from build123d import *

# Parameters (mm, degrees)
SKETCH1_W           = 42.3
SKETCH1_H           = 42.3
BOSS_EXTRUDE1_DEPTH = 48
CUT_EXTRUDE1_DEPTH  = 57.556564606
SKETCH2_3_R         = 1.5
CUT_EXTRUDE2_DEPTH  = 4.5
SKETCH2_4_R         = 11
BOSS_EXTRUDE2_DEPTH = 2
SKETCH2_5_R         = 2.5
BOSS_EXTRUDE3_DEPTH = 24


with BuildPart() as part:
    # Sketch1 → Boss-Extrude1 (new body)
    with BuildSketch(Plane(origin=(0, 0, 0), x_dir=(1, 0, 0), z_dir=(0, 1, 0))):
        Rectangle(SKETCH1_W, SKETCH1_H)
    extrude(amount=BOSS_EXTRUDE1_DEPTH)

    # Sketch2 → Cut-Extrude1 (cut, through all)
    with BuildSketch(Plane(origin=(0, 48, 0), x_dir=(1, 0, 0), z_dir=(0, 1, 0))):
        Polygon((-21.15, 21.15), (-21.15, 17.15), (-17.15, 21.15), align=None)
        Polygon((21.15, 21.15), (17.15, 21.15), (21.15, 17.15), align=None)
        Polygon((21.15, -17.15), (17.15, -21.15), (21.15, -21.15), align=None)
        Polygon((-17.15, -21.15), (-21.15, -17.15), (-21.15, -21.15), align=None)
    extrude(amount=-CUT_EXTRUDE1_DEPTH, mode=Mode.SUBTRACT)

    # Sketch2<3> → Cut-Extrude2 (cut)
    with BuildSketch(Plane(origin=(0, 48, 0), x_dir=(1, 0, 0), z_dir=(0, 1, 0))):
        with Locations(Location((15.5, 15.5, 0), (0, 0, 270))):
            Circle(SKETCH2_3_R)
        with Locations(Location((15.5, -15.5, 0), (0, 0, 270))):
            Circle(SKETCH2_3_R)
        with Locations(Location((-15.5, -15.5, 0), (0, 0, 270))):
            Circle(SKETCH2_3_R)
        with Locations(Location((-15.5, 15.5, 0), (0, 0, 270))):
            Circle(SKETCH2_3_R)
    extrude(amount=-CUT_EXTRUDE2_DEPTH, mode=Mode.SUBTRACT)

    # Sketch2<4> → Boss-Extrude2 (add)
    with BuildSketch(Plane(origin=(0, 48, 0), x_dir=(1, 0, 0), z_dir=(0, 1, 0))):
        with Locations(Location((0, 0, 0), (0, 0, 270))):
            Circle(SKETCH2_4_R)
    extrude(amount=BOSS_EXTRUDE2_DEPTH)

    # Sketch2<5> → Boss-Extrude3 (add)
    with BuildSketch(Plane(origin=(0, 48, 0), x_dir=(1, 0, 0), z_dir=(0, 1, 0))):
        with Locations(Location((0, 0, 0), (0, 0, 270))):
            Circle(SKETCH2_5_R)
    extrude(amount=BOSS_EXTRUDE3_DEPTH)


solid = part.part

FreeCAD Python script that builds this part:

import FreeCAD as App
import Part
import Sketcher

V = App.Vector
Q = App.Units.Quantity


def add_polygon(sketch, points):
    """Adds a closed chain of lines whose ends are joined by coincident constraints."""
    first, n = sketch.GeometryCount, len(points)
    for a, b in zip(points, points[1:] + points[:1]):
        sketch.addGeometry(Part.LineSegment(App.Vector(*a, 0), App.Vector(*b, 0)), False)
    for i in range(n):
        sketch.addConstraint(Sketcher.Constraint("Coincident", first + i, 2, first + (i + 1) % n, 1))

doc = App.newDocument("Part")
params = doc.addObject("Spreadsheet::Sheet", "Params")
for row, (alias, value) in enumerate([
    ("sketch1_width", "42.3 mm"),
    ("pad1_length", "48 mm"),
    ("sketch2_width", "4 mm"),
    ("sketch3_diameter", "3 mm"),
    ("pocket2_length", "4.5 mm"),
    ("sketch4_diameter", "22 mm"),
    ("pad2_length", "2 mm"),
    ("sketch5_diameter", "5 mm"),
    ("pad3_length", "24 mm"),
], start=1):
    params.set(f"A{row}", alias)
    params.set(f"B{row}", "=" + value)
    params.setAlias(f"B{row}", alias)

body = doc.addObject("PartDesign::Body", "Body")

# Sketch on XZ plane
sketch1 = body.newObject("Sketcher::SketchObject", "Sketch")
sketch1.AttachmentSupport = (doc.getObject("XZ_Plane"), [""])
sketch1.MapMode = "FlatFace"
add_polygon(sketch1, [(-21, -21), (-21, 21), (21, 21), (21, -21)])  # lines 0-3
sketch1.addConstraint([
    Sketcher.Constraint("Vertical", 0),
    Sketcher.Constraint("Horizontal", 1),
    Sketcher.Constraint("Vertical", 2),
    Sketcher.Constraint("Horizontal", 3),
    Sketcher.Constraint("Symmetric", 0, 2, 2, 2, -1, 1),
    Sketcher.Constraint("Equal", 3, 0),
    Sketcher.Constraint("DistanceX", 1, 1, 1, 2, Q("42.3 mm")),
])
sketch1.setExpression("Constraints[10]", "Params.sketch1_width")
pad1 = body.newObject("PartDesign::Pad", "Pad")
pad1.Profile = sketch1
pad1.setExpression("Length", "Params.pad1_length")
pad1.Reversed = True

# Sketch on XZ plane
sketch2 = body.newObject("Sketcher::SketchObject", "Sketch001")
sketch2.AttachmentSupport = (doc.getObject("XZ_Plane"), [""])
sketch2.MapMode = "FlatFace"
sketch2.AttachmentOffset = App.Placement(V(0, 0, -48), App.Rotation())
add_polygon(sketch2, [(-21.1, -21.1), (-21.1, -17.1), (-17.1, -21.1)])  # lines 0-2
add_polygon(sketch2, [(21.1, -21.1), (17.1, -21.1), (21.1, -17.1)])  # lines 3-5
add_polygon(sketch2, [(21.1, 17.1), (17.1, 21.1), (21.1, 21.1)])  # lines 6-8
add_polygon(sketch2, [(-17.1, 21.1), (-21.1, 17.1), (-21.1, 21.1)])  # lines 9-11
sketch2.addConstraint([
    Sketcher.Constraint("Vertical", 0),
    Sketcher.Constraint("Horizontal", 2),
    Sketcher.Constraint("Horizontal", 3),
    Sketcher.Constraint("Vertical", 5),
    Sketcher.Constraint("Horizontal", 7),
    Sketcher.Constraint("Vertical", 8),
    Sketcher.Constraint("Vertical", 10),
    Sketcher.Constraint("Horizontal", 11),
    Sketcher.Constraint("Symmetric", 1, 2, 6, 2, -1, 1),
    Sketcher.Constraint("Symmetric", 0, 2, 8, 2, -1, 1),
    Sketcher.Constraint("Symmetric", 4, 2, 9, 2, -1, 1),
    Sketcher.Constraint("Symmetric", 3, 2, 11, 2, -1, 1),
    Sketcher.Constraint("Symmetric", 1, 2, 3, 2, -2),
    Sketcher.Constraint("Symmetric", 0, 2, 4, 2, -2),
    Sketcher.Constraint("Perpendicular", 1, 4),
    Sketcher.Constraint("DistanceX", 2, 2, 2, 1, Q("4 mm")),
    Sketcher.Constraint("DistanceX", 1, 2, 3, 2, Q("34.3 mm")),
    Sketcher.Constraint("DistanceY", 4, 2, 6, 2, Q("38.3 mm")),
])
sketch2.setExpression("Constraints[27]", "Params.sketch2_width")
pocket1 = body.newObject("PartDesign::Pocket", "Pocket")
pocket1.Profile = sketch2
pocket1.Type = "ThroughAll"
pocket1.Reversed = True

# Sketch on XZ plane
sketch3 = body.newObject("Sketcher::SketchObject", "Sketch002")
sketch3.AttachmentSupport = (doc.getObject("XZ_Plane"), [""])
sketch3.MapMode = "FlatFace"
sketch3.AttachmentOffset = App.Placement(V(0, 0, -48), App.Rotation())
sketch3.addGeometry([
    Part.Circle(V(15.5, -15.5, 0), V(0, 0, 1), 1.5),
    Part.Circle(V(15.5, 15.5, 0), V(0, 0, 1), 1.5),
    Part.Circle(V(-15.5, 15.5, 0), V(0, 0, 1), 1.5),
    Part.Circle(V(-15.5, -15.5, 0), V(0, 0, 1), 1.5),
], False)
sketch3.addConstraint([
    Sketcher.Constraint("Equal", 0, 1),
    Sketcher.Constraint("Equal", 1, 2),
    Sketcher.Constraint("Equal", 2, 3),
    Sketcher.Constraint("Symmetric", 0, 3, 2, 3, -1, 1),
    Sketcher.Constraint("Symmetric", 1, 3, 3, 3, -1, 1),
    Sketcher.Constraint("Symmetric", 1, 3, 2, 3, -2),
    Sketcher.Constraint("Diameter", 0, Q("3 mm")),
    Sketcher.Constraint("DistanceY", 0, 3, 1, 3, Q("31 mm")),
    Sketcher.Constraint("DistanceX", 2, 3, 1, 3, Q("31 mm")),
])
sketch3.setExpression("Constraints[6]", "Params.sketch3_diameter")
pocket2 = body.newObject("PartDesign::Pocket", "Pocket001")
pocket2.Profile = sketch3
pocket2.setExpression("Length", "Params.pocket2_length")
pocket2.Reversed = True

# Sketch on XZ plane
sketch4 = body.newObject("Sketcher::SketchObject", "Sketch003")
sketch4.AttachmentSupport = (doc.getObject("XZ_Plane"), [""])
sketch4.MapMode = "FlatFace"
sketch4.AttachmentOffset = App.Placement(V(0, 0, -48), App.Rotation())
sketch4.addGeometry(Part.Circle(V(0, 0, 0), V(0, 0, 1), 11), False)
sketch4.addConstraint([
    Sketcher.Constraint("Coincident", 0, 3, -1, 1),
    Sketcher.Constraint("Diameter", 0, Q("22 mm")),
])
sketch4.setExpression("Constraints[1]", "Params.sketch4_diameter")
pad2 = body.newObject("PartDesign::Pad", "Pad001")
pad2.Profile = sketch4
pad2.setExpression("Length", "Params.pad2_length")
pad2.Reversed = True

# Sketch on XZ plane
sketch5 = body.newObject("Sketcher::SketchObject", "Sketch004")
sketch5.AttachmentSupport = (doc.getObject("XZ_Plane"), [""])
sketch5.MapMode = "FlatFace"
sketch5.AttachmentOffset = App.Placement(V(0, 0, -48), App.Rotation())
sketch5.addGeometry(Part.Circle(V(0, 0, 0), V(0, 0, 1), 2.5), False)
sketch5.addConstraint([
    Sketcher.Constraint("Coincident", 0, 3, -1, 1),
    Sketcher.Constraint("Diameter", 0, Q("5 mm")),
])
sketch5.setExpression("Constraints[1]", "Params.sketch5_diameter")
pad3 = body.newObject("PartDesign::Pad", "Pad002")
pad3.Profile = sketch5
pad3.setExpression("Length", "Params.pad3_length")
pad3.Reversed = True

doc.recompute()
